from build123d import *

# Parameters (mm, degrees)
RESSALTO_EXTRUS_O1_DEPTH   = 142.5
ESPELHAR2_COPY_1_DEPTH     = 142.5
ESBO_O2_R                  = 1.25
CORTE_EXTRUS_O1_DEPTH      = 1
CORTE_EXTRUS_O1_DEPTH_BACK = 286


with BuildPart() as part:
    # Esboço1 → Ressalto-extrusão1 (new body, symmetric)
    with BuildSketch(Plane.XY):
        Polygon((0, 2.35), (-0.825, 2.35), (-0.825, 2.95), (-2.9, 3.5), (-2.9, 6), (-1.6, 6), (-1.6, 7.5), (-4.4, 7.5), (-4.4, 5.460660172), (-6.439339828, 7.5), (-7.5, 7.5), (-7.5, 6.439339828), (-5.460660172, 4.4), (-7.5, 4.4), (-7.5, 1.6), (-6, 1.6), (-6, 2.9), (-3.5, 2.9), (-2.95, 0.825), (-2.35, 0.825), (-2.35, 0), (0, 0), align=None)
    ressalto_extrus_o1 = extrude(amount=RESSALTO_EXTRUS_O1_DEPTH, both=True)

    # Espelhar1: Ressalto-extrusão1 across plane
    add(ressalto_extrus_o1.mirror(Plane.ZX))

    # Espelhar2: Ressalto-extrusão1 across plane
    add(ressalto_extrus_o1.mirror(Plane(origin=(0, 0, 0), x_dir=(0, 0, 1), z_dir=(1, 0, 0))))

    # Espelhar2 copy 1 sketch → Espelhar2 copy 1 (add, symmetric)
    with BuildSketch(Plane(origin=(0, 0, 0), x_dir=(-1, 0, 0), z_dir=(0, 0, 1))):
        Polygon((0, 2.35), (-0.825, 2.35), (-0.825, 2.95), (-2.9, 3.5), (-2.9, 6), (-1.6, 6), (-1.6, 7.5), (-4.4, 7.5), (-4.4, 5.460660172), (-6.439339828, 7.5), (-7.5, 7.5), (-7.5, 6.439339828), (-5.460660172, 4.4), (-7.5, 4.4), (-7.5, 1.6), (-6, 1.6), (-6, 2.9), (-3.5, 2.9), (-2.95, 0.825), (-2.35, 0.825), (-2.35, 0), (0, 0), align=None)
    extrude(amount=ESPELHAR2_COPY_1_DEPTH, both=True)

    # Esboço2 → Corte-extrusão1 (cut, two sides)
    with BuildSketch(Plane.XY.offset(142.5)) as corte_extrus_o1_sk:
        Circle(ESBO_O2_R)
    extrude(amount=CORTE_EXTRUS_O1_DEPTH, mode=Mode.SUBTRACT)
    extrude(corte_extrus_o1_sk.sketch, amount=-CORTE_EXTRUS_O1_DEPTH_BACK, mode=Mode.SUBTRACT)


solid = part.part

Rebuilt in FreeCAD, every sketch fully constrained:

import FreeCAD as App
import Part
import Sketcher

V = App.Vector
Q = App.Units.Quantity

doc = App.newDocument("Part")
body = doc.addObject("PartDesign::Body", "Body")

# Sketch on XY plane
sketch1 = body.newObject("Sketcher::SketchObject", "Sketch")
sketch1.AttachmentSupport = (doc.getObject("XY_Plane"), [""])
sketch1.MapMode = "FlatFace"
sketch1.addGeometry([
    Part.LineSegment(V(0, 2.4, 0), V(-0.8, 2.4, 0)),  # 0
    Part.LineSegment(V(-0.8, 2.4, 0), V(-0.8, 3, 0)),  # 1
    Part.LineSegment(V(-0.8, 3, 0), V(-2.9, 3.5, 0)),  # 2
    Part.LineSegment(V(-2.9, 3.5, 0), V(-2.9, 6, 0)),  # 3
    Part.LineSegment(V(-2.9, 6, 0), V(-1.6, 6, 0)),  # 4
    Part.LineSegment(V(-1.6, 6, 0), V(-1.6, 7.5, 0)),  # 5
    Part.LineSegment(V(-1.6, 7.5, 0), V(-4.4, 7.5, 0)),  # 6
    Part.LineSegment(V(-4.4, 7.5, 0), V(-4.4, 5.5, 0)),  # 7
    Part.LineSegment(V(-4.4, 5.5, 0), V(-6.4, 7.5, 0)),  # 8
    Part.LineSegment(V(-6.4, 7.5, 0), V(-7.5, 7.5, 0)),  # 9
    Part.LineSegment(V(-7.5, 7.5, 0), V(-7.5, 6.4, 0)),  # 10
    Part.LineSegment(V(-7.5, 6.4, 0), V(-5.5, 4.4, 0)),  # 11
    Part.LineSegment(V(-5.5, 4.4, 0), V(-7.5, 4.4, 0)),  # 12
    Part.LineSegment(V(-7.5, 4.4, 0), V(-7.5, 1.6, 0)),  # 13
    Part.LineSegment(V(-7.5, 1.6, 0), V(-6, 1.6, 0)),  # 14
    Part.LineSegment(V(-6, 1.6, 0), V(-6, 2.9, 0)),  # 15
    Part.LineSegment(V(-6, 2.9, 0), V(-3.5, 2.9, 0)),  # 16
    Part.LineSegment(V(-3.5, 2.9, 0), V(-3, 0.8, 0)),  # 17
    Part.LineSegment(V(-3, 0.8, 0), V(-2.4, 0.8, 0)),  # 18
    Part.LineSegment(V(-2.4, 0.8, 0), V(-2.4, 0, 0)),  # 19
    Part.LineSegment(V(-2.4, 0, 0), V(0, 0, 0)),  # 20
    Part.LineSegment(V(0, 0, 0), V(0, 2.4, 0)),  # 21
], False)
sketch1.addConstraint([
    Sketcher.Constraint("Coincident", 0, 2, 1, 1),
    Sketcher.Constraint("Coincident", 1, 2, 2, 1),
    Sketcher.Constraint("Coincident", 2, 2, 3, 1),
    Sketcher.Constraint("Coincident", 3, 2, 4, 1),
    Sketcher.Constraint("Coincident", 4, 2, 5, 1),
    Sketcher.Constraint("Coincident", 5, 2, 6, 1),
    Sketcher.Constraint("Coincident", 6, 2, 7, 1),
    Sketcher.Constraint("Coincident", 7, 2, 8, 1),
    Sketcher.Constraint("Coincident", 8, 2, 9, 1),
    Sketcher.Constraint("Coincident", 9, 2, 10, 1),
    Sketcher.Constraint("Coincident", 10, 2, 11, 1),
    Sketcher.Constraint("Coincident", 11, 2, 12, 1),
    Sketcher.Constraint("Coincident", 12, 2, 13, 1),
    Sketcher.Constraint("Coincident", 13, 2, 14, 1),
    Sketcher.Constraint("Coincident", 14, 2, 15, 1),
    Sketcher.Constraint("Coincident", 15, 2, 16, 1),
    Sketcher.Constraint("Coincident", 16, 2, 17, 1),
    Sketcher.Constraint("Coincident", 17, 2, 18, 1),
    Sketcher.Constraint("Coincident", 18, 2, 19, 1),
    Sketcher.Constraint("Coincident", 19, 2, 20, 1),
    Sketcher.Constraint("Coincident", 20, 2, 21, 1),
    Sketcher.Constraint("Coincident", 21, 2, 0, 1),
    Sketcher.Constraint("Horizontal", 0),
    Sketcher.Constraint("Vertical", 1),
    Sketcher.Constraint("Vertical", 3),
    Sketcher.Constraint("Horizontal", 4),
    Sketcher.Constraint("Vertical", 5),
    Sketcher.Constraint("Horizontal", 6),
    Sketcher.Constraint("Vertical", 7),
    Sketcher.Constraint("Horizontal", 9),
    Sketcher.Constraint("Vertical", 10),
    Sketcher.Constraint("Horizontal", 12),
    Sketcher.Constraint("Vertical", 13),
    Sketcher.Constraint("Horizontal", 14),
    Sketcher.Constraint("Vertical", 15),
    Sketcher.Constraint("Horizontal", 16),
    Sketcher.Constraint("Horizontal", 18),
    Sketcher.Constraint("Vertical", 19),
    Sketcher.Constraint("Horizontal", 20),
    Sketcher.Constraint("Vertical", 21),
    Sketcher.Constraint("Coincident", 20, 2, -1, 1),
    Sketcher.Constraint("Parallel", 8, 11),
    Sketcher.Constraint("Horizontal", 6, 2, 8, 2),
    Sketcher.Constraint("Vertical", 10, 2, 12, 2),
    Sketcher.Constraint("Equal", 18, 1),
    Sketcher.Constraint("Equal", 16, 3),
    Sketcher.Constraint("Equal", 14, 5),
    Sketcher.Constraint("Equal", 12, 7),
    Sketcher.Constraint("Equal", 9, 10),
    Sketcher.Constraint("Equal", 6, 13),
    Sketcher.Constraint("Equal", 4, 15),
    Sketcher.Constraint("Equal", 0, 19),
    Sketcher.Constraint("Equal", 20, 21),
    Sketcher.Constraint("Equal", 8, 11),
    Sketcher.Constraint("Equal", 2, 17),
    Sketcher.Constraint("DistanceX", 4, 1, 4, 2, Q("1.3 mm")),
    Sketcher.Constraint("DistanceX", 6, 2, 6, 1, Q("2.8 mm")),
    Sketcher.Constraint("DistanceX", 14, 1, 14, 2, Q("1.5 mm")),
    Sketcher.Constraint("DistanceX", 16, 1, 16, 2, Q("2.5 mm")),
    Sketcher.Constraint("DistanceX", 18, 1, 18, 2, Q("0.6 mm")),
    Sketcher.Constraint("DistanceY", -1, 1, 3, 2, Q("6 mm")),
    Sketcher.Constraint("DistanceX", 20, 1, 20, 2, Q("2.35 mm")),
    Sketcher.Constraint("DistanceX", 2, 2, -1, 1, Q("2.9 mm")),
    Sketcher.Constraint("DistanceX", 0, 2, 0, 1, Q("0.825 mm")),
    Sketcher.Constraint("DistanceX", 9, 2, 9, 1, Q("1.06066 mm")),
])
pad1 = body.newObject("PartDesign::Pad", "Pad")
pad1.Profile = sketch1
pad1.Length = 285
pad1.Midplane = True
doc.recompute()

mirrored = body.newObject("PartDesign::Mirrored", "Mirrored")
mirrored.Originals = [pad1]
mirrored.MirrorPlane = (doc.getObject("XZ_Plane"), [""])
body.Tip = mirrored
doc.recompute()

mirrored2 = body.newObject("PartDesign::Mirrored", "Mirrored001")
mirrored2.Originals = [pad1]
mirrored2.MirrorPlane = (doc.getObject("YZ_Plane"), [""])
body.Tip = mirrored2

# Sketch on XY plane
sketch2 = body.newObject("Sketcher::SketchObject", "Sketch001")
sketch2.AttachmentSupport = (doc.getObject("XY_Plane"), [""])
sketch2.MapMode = "FlatFace"
sketch2.addGeometry([
    Part.LineSegment(V(0, -2.4, 0), V(0.8, -2.4, 0)),  # 0
    Part.LineSegment(V(0.8, -2.4, 0), V(0.8, -3, 0)),  # 1
    Part.LineSegment(V(0.8, -3, 0), V(2.9, -3.5, 0)),  # 2
    Part.LineSegment(V(2.9, -3.5, 0), V(2.9, -6, 0)),  # 3
    Part.LineSegment(V(2.9, -6, 0), V(1.6, -6, 0)),  # 4
    Part.LineSegment(V(1.6, -6, 0), V(1.6, -7.5, 0)),  # 5
    Part.LineSegment(V(1.6, -7.5, 0), V(4.4, -7.5, 0)),  # 6
    Part.LineSegment(V(4.4, -7.5, 0), V(4.4, -5.5, 0)),  # 7
    Part.LineSegment(V(4.4, -5.5, 0), V(6.4, -7.5, 0)),  # 8
    Part.LineSegment(V(6.4, -7.5, 0), V(7.5, -7.5, 0)),  # 9
    Part.LineSegment(V(7.5, -7.5, 0), V(7.5, -6.4, 0)),  # 10
    Part.LineSegment(V(7.5, -6.4, 0), V(5.5, -4.4, 0)),  # 11
    Part.LineSegment(V(5.5, -4.4, 0), V(7.5, -4.4, 0)),  # 12
    Part.LineSegment(V(7.5, -4.4, 0), V(7.5, -1.6, 0)),  # 13
    Part.LineSegment(V(7.5, -1.6, 0), V(6, -1.6, 0)),  # 14
    Part.LineSegment(V(6, -1.6, 0), V(6, -2.9, 0)),  # 15
    Part.LineSegment(V(6, -2.9, 0), V(3.5, -2.9, 0)),  # 16
    Part.LineSegment(V(3.5, -2.9, 0), V(3, -0.8, 0)),  # 17
    Part.LineSegment(V(3, -0.8, 0), V(2.4, -0.8, 0)),  # 18
    Part.LineSegment(V(2.4, -0.8, 0), V(2.4, 0, 0)),  # 19
    Part.LineSegment(V(2.4, 0, 0), V(0, 0, 0)),  # 20
    Part.LineSegment(V(0, 0, 0), V(0, -2.4, 0)),  # 21
], False)
sketch2.addConstraint([
    Sketcher.Constraint("Coincident", 0, 2, 1, 1),
    Sketcher.Constraint("Coincident", 1, 2, 2, 1),
    Sketcher.Constraint("Coincident", 2, 2, 3, 1),
    Sketcher.Constraint("Coincident", 3, 2, 4, 1),
    Sketcher.Constraint("Coincident", 4, 2, 5, 1),
    Sketcher.Constraint("Coincident", 5, 2, 6, 1),
    Sketcher.Constraint("Coincident", 6, 2, 7, 1),
    Sketcher.Constraint("Coincident", 7, 2, 8, 1),
    Sketcher.Constraint("Coincident", 8, 2, 9, 1),
    Sketcher.Constraint("Coincident", 9, 2, 10, 1),
    Sketcher.Constraint("Coincident", 10, 2, 11, 1),
    Sketcher.Constraint("Coincident", 11, 2, 12, 1),
    Sketcher.Constraint("Coincident", 12, 2, 13, 1),
    Sketcher.Constraint("Coincident", 13, 2, 14, 1),
    Sketcher.Constraint("Coincident", 14, 2, 15, 1),
    Sketcher.Constraint("Coincident", 15, 2, 16, 1),
    Sketcher.Constraint("Coincident", 16, 2, 17, 1),
    Sketcher.Constraint("Coincident", 17, 2, 18, 1),
    Sketcher.Constraint("Coincident", 18, 2, 19, 1),
    Sketcher.Constraint("Coincident", 19, 2, 20, 1),
    Sketcher.Constraint("Coincident", 20, 2, 21, 1),
    Sketcher.Constraint("Coincident", 21, 2, 0, 1),
    Sketcher.Constraint("Horizontal", 0),
    Sketcher.Constraint("Vertical", 1),
    Sketcher.Constraint("Vertical", 3),
    Sketcher.Constraint("Horizontal", 4),
    Sketcher.Constraint("Vertical", 5),
    Sketcher.Constraint("Horizontal", 6),
    Sketcher.Constraint("Vertical", 7),
    Sketcher.Constraint("Horizontal", 9),
    Sketcher.Constraint("Vertical", 10),
    Sketcher.Constraint("Horizontal", 12),
    Sketcher.Constraint("Vertical", 13),
    Sketcher.Constraint("Horizontal", 14),
    Sketcher.Constraint("Vertical", 15),
    Sketcher.Constraint("Horizontal", 16),
    Sketcher.Constraint("Horizontal", 18),
    Sketcher.Constraint("Vertical", 19),
    Sketcher.Constraint("Horizontal", 20),
    Sketcher.Constraint("Vertical", 21),
    Sketcher.Constraint("Coincident", 20, 2, -1, 1),
    Sketcher.Constraint("Parallel", 8, 11),
    Sketcher.Constraint("Horizontal", 6, 2, 8, 2),
    Sketcher.Constraint("Vertical", 10, 2, 12, 2),
    Sketcher.Constraint("Equal", 18, 1),
    Sketcher.Constraint("Equal", 16, 3),
    Sketcher.Constraint("Equal", 14, 5),
    Sketcher.Constraint("Equal", 12, 7),
    Sketcher.Constraint("Equal", 9, 10),
    Sketcher.Constraint("Equal", 6, 13),
    Sketcher.Constraint("Equal", 4, 15),
    Sketcher.Constraint("Equal", 0, 19),
    Sketcher.Constraint("Equal", 20, 21),
    Sketcher.Constraint("Equal", 8, 11),
    Sketcher.Constraint("Equal", 2, 17),
    Sketcher.Constraint("DistanceX", 4, 2, 4, 1, Q("1.3 mm")),
    Sketcher.Constraint("DistanceX", 6, 1, 6, 2, Q("2.8 mm")),
    Sketcher.Constraint("DistanceX", 14, 2, 14, 1, Q("1.5 mm")),
    Sketcher.Constraint("DistanceX", 16, 2, 16, 1, Q("2.5 mm")),
    Sketcher.Constraint("DistanceX", 18, 2, 18, 1, Q("0.6 mm")),
    Sketcher.Constraint("DistanceY", 3, 2, -1, 1, Q("6 mm")),
    Sketcher.Constraint("DistanceX", 20, 2, 20, 1, Q("2.35 mm")),
    Sketcher.Constraint("DistanceX", -1, 1, 2, 2, Q("2.9 mm")),
    Sketcher.Constraint("DistanceX", 0, 1, 0, 2, Q("0.825 mm")),
    Sketcher.Constraint("DistanceX", 9, 1, 9, 2, Q("1.06066 mm")),
])
pad2 = body.newObject("PartDesign::Pad", "Pad001")
pad2.Profile = sketch2
pad2.Length = 285
pad2.Midplane = True

# Sketch on XY plane
sketch3 = body.newObject("Sketcher::SketchObject", "Sketch002")
sketch3.AttachmentSupport = (doc.getObject("XY_Plane"), [""])
sketch3.MapMode = "FlatFace"
sketch3.AttachmentOffset = App.Placement(V(0, 0, 142.5), App.Rotation())
sketch3.addGeometry(Part.Circle(V(0, 0, 0), V(0, 0, 1), 1.2), False)
sketch3.addConstraint([
    Sketcher.Constraint("Coincident", 0, 3, -1, 1),
    Sketcher.Constraint("Diameter", 0, Q("2.5 mm")),
])
pocket1 = body.newObject("PartDesign::Pocket", "Pocket")
pocket1.Profile = sketch3
pocket1.Type = "ThroughAll"
pocket1.Midplane = True

doc.recompute()
